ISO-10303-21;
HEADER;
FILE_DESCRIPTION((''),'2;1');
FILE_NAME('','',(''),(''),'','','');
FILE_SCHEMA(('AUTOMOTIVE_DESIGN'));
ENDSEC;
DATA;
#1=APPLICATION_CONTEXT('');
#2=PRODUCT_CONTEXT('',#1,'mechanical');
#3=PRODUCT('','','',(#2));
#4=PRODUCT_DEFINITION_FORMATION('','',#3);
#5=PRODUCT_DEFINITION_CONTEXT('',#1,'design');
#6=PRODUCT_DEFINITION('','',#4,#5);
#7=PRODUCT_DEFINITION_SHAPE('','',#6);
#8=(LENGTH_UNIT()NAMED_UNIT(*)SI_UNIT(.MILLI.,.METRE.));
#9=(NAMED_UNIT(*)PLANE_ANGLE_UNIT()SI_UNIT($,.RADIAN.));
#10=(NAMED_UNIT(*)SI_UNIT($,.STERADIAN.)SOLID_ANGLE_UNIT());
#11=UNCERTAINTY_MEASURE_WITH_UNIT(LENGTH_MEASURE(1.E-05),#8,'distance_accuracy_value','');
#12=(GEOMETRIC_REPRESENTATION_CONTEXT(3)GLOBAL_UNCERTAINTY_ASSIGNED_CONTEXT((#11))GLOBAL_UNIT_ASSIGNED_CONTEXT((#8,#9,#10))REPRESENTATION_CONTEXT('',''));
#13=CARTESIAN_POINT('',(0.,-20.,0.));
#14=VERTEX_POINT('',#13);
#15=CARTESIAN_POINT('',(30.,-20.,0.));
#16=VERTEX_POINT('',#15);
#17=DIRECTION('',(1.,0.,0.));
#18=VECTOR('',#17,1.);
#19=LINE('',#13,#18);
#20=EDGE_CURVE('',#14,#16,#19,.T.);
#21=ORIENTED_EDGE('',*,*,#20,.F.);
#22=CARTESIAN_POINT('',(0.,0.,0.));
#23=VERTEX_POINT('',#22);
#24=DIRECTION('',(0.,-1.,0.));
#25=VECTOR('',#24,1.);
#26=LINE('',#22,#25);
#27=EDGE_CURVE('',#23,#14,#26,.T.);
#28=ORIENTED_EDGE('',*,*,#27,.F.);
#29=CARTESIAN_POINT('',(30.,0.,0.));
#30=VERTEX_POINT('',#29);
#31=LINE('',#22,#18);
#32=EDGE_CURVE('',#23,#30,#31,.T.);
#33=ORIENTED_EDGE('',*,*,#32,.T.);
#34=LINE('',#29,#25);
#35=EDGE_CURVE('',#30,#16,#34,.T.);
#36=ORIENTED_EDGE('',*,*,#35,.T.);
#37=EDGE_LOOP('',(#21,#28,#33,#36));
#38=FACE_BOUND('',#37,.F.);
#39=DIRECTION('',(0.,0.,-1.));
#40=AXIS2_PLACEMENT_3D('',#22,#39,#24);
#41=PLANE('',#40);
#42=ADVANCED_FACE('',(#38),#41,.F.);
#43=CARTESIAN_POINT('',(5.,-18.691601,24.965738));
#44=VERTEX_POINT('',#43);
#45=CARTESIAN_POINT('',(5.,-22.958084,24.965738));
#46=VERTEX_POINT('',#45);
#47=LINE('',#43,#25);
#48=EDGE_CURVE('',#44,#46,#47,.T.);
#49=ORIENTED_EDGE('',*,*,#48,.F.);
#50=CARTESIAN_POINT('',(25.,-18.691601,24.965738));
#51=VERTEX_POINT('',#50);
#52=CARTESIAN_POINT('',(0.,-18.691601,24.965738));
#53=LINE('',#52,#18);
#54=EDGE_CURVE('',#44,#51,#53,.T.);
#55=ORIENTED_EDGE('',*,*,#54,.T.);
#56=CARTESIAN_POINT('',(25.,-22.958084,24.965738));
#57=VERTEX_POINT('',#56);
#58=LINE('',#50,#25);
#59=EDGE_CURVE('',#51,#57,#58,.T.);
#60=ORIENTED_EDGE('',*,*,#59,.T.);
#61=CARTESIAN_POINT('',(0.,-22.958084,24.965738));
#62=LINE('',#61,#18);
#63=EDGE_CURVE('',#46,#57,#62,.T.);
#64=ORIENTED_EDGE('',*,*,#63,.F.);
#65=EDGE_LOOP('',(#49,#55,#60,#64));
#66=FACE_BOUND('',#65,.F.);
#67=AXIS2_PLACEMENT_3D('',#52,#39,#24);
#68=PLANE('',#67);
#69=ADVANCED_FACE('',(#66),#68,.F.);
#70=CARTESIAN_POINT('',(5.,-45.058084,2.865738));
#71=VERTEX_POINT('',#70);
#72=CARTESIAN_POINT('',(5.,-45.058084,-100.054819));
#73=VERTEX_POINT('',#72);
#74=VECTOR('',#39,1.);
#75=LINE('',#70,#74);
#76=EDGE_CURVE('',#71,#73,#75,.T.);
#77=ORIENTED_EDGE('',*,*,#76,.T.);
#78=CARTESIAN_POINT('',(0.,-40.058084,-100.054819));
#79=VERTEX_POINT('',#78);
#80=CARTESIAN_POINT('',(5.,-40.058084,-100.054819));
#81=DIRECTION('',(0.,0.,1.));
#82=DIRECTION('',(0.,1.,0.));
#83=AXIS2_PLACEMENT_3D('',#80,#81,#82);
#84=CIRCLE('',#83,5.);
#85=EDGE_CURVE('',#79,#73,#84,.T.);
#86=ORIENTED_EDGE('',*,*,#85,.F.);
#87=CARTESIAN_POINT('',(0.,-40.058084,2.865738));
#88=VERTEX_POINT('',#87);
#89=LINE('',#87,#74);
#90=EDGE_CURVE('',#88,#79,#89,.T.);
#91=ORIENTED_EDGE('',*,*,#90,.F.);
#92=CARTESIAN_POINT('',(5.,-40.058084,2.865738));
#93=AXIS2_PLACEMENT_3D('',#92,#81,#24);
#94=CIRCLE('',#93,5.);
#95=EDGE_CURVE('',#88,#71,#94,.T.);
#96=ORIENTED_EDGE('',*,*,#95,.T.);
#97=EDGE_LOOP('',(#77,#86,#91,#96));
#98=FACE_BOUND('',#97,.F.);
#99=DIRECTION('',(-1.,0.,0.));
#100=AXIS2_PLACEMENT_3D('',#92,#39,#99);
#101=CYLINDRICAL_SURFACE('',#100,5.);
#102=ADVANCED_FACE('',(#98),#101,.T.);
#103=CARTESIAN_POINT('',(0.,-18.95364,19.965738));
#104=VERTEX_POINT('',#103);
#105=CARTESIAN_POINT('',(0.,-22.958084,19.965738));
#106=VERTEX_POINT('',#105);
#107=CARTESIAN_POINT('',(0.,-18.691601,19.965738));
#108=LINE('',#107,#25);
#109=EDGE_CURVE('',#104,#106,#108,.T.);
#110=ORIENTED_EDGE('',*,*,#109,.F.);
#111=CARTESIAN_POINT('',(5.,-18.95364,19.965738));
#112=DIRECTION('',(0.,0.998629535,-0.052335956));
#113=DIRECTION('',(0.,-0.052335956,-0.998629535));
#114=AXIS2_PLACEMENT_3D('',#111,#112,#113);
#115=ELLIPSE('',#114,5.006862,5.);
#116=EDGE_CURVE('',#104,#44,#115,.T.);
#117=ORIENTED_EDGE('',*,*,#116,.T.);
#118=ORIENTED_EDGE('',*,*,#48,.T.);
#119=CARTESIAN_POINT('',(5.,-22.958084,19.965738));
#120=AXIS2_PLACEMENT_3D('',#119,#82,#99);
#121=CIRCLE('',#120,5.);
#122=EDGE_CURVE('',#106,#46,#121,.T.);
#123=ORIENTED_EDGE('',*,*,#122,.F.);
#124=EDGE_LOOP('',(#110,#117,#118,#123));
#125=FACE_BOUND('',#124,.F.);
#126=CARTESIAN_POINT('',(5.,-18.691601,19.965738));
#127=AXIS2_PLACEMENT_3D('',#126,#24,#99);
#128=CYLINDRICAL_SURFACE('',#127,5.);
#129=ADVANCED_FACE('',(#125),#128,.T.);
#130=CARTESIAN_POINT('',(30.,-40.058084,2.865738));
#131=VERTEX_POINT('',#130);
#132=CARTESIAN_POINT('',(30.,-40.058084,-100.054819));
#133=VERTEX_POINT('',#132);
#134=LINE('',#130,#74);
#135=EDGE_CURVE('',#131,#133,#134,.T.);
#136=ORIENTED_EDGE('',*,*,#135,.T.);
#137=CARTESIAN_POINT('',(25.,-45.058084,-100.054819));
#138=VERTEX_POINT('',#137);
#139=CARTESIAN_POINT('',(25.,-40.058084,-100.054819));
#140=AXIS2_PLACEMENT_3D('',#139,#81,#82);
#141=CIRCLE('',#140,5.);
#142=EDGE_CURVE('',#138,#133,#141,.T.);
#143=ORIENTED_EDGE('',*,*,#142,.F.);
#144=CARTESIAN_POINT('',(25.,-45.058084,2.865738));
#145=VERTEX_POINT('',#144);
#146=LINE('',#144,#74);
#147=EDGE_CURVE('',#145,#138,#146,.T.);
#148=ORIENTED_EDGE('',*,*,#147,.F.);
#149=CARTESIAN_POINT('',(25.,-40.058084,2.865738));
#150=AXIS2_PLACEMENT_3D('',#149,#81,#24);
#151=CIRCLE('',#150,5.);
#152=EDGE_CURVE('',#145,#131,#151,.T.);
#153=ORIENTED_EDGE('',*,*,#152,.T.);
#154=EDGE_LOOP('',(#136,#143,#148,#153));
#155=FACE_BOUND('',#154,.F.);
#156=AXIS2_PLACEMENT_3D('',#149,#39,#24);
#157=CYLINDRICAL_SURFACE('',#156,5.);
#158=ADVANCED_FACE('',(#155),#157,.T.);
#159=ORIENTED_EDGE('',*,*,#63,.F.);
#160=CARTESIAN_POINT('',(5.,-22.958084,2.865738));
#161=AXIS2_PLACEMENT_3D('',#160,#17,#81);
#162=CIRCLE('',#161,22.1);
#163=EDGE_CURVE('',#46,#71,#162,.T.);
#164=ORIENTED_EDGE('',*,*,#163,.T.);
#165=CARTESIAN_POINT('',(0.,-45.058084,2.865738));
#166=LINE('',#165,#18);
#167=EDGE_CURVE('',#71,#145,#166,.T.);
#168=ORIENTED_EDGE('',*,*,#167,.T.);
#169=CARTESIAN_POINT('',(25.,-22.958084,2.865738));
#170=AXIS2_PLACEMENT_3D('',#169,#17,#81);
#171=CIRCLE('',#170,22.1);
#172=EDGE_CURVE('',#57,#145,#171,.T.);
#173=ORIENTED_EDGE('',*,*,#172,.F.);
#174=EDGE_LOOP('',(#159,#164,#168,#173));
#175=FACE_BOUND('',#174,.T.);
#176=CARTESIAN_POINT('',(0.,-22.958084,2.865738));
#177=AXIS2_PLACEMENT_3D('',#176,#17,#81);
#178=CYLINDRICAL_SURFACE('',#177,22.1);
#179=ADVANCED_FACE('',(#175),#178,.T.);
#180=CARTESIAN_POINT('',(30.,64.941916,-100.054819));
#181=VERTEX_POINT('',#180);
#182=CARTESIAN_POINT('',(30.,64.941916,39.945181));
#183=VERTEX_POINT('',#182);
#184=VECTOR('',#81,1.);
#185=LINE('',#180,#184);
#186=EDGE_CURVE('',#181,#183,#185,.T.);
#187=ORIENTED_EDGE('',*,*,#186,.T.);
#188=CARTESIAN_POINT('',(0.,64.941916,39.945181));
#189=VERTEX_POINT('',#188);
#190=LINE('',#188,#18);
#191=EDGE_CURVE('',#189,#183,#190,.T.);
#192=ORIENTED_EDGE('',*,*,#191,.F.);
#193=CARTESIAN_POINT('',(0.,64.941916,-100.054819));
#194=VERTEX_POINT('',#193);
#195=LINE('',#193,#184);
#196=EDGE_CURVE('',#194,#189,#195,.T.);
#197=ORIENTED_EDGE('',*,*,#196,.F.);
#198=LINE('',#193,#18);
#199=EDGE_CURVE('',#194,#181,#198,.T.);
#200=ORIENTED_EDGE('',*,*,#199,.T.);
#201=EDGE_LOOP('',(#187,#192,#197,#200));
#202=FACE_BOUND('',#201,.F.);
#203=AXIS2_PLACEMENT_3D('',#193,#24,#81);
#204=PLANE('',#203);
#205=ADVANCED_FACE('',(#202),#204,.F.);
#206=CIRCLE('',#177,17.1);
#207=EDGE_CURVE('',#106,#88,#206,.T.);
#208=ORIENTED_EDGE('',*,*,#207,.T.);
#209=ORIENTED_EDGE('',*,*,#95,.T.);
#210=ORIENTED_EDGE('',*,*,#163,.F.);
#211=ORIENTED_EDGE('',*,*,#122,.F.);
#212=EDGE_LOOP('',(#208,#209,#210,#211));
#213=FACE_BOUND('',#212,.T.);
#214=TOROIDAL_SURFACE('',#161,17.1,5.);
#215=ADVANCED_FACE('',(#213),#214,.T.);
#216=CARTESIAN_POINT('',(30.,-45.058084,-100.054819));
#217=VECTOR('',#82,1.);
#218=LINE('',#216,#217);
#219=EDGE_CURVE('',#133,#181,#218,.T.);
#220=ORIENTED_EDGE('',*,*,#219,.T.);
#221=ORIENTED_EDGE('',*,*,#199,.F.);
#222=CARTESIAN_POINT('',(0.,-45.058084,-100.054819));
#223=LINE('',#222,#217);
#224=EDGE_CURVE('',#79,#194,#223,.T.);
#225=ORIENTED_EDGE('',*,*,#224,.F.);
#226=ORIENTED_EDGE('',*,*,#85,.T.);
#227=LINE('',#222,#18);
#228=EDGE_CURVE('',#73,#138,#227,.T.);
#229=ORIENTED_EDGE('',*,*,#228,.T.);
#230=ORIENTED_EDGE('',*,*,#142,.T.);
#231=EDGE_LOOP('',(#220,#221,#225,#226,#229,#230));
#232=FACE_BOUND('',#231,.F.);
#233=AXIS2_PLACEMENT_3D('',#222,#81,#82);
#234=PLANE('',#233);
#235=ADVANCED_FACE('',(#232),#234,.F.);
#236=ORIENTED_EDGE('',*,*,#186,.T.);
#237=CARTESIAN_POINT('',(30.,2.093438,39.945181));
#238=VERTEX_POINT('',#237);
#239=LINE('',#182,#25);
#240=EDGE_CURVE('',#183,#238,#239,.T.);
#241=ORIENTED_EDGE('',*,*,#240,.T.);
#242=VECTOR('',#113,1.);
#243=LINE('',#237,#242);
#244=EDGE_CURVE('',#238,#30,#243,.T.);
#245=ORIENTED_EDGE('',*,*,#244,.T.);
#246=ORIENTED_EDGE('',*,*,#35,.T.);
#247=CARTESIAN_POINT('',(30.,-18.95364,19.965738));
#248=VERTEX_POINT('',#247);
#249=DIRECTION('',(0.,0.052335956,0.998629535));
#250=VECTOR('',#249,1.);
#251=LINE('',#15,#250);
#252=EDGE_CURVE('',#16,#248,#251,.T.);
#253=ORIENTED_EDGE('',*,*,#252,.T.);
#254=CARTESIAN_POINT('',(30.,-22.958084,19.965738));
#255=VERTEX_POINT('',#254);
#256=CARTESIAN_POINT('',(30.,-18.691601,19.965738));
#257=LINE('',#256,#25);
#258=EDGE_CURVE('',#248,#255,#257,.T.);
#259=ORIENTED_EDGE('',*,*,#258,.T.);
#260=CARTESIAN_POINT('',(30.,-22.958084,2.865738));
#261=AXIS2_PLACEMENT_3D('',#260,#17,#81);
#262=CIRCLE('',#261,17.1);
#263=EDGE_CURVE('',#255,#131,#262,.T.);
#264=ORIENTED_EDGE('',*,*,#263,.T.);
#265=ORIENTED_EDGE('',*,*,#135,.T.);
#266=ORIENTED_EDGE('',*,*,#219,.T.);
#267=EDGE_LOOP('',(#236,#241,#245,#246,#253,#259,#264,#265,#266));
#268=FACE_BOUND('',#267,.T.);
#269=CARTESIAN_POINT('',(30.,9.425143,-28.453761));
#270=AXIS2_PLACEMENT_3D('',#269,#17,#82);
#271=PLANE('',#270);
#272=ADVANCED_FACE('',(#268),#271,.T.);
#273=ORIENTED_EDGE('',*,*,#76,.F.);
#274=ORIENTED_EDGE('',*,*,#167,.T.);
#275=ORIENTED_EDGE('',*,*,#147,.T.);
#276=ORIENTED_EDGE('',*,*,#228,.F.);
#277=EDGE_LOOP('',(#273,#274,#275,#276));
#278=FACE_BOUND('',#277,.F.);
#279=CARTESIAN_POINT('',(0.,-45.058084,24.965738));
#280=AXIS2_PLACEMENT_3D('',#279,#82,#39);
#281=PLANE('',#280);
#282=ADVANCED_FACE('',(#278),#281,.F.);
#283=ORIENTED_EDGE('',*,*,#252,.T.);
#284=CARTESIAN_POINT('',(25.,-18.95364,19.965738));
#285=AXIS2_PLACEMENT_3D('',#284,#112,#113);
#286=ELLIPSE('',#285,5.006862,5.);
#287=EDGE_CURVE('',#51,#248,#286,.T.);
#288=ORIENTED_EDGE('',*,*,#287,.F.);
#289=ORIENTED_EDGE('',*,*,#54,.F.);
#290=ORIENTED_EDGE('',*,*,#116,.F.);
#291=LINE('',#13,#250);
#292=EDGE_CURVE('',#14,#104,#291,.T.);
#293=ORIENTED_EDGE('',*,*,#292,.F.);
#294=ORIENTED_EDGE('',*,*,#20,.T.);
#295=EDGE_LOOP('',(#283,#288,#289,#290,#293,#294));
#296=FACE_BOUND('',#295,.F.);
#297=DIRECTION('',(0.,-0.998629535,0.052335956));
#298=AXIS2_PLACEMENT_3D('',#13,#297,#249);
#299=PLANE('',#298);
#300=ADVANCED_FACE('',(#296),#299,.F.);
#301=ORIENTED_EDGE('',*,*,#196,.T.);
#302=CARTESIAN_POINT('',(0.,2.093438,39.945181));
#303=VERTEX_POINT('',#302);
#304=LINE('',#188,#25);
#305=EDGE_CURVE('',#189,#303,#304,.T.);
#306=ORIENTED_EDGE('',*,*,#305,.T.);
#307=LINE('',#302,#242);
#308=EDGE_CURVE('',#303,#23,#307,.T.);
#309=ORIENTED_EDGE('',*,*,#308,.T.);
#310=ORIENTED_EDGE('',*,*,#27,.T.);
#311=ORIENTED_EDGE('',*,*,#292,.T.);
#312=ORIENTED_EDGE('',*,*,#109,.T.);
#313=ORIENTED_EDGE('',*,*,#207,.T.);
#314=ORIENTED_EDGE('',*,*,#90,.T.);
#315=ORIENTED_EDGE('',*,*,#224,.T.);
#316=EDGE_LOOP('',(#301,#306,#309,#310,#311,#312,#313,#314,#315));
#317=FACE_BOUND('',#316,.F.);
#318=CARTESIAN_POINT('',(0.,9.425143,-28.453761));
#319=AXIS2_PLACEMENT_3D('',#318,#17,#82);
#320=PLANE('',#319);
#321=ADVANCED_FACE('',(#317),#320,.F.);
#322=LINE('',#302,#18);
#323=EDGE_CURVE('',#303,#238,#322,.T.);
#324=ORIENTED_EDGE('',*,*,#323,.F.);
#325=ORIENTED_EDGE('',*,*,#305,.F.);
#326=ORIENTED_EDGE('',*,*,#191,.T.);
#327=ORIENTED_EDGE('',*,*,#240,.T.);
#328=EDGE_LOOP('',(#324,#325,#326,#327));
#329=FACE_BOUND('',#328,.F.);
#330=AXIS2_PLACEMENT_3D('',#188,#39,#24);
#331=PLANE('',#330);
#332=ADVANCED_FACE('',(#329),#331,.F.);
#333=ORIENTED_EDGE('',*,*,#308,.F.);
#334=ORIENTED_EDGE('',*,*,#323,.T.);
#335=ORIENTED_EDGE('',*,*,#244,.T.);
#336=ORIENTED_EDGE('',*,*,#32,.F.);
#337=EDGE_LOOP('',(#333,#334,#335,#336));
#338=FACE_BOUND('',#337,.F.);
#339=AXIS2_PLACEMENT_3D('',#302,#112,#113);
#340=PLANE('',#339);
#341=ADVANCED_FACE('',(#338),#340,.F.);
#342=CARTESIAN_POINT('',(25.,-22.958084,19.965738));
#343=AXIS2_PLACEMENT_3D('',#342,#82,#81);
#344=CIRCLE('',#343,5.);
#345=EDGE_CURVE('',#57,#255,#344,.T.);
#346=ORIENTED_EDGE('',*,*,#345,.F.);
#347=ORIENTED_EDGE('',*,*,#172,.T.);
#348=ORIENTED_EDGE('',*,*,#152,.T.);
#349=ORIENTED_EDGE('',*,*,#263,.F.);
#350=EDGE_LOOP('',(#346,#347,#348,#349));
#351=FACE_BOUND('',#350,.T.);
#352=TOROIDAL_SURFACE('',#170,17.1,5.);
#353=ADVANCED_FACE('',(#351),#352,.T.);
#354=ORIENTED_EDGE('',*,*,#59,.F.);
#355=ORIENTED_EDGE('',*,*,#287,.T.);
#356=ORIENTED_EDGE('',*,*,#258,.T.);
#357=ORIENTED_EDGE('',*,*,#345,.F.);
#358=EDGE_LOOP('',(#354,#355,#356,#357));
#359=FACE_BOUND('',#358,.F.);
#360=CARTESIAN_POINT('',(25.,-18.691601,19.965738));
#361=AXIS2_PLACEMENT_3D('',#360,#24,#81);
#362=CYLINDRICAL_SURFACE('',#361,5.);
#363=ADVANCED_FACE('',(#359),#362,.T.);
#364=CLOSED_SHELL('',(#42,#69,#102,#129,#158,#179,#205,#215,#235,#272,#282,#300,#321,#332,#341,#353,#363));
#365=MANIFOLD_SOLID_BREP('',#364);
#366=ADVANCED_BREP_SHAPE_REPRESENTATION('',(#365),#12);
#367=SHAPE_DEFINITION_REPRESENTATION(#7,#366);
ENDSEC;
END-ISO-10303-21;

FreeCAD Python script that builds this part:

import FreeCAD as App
import Part
import Sketcher

V = App.Vector
Q = App.Units.Quantity


def edges_at(feature, points):
    """Names of the edges that pass closest to the given points."""
    edges = feature.Shape.Edges
    near = lambda p: min(range(len(edges)), key=lambda i: edges[i].distToShape(Part.Vertex(*p))[0])
    return sorted({f"Edge{near(p) + 1}" for p in points})

doc = App.newDocument("Part")
body = doc.addObject("PartDesign::Body", "Body")

# Sketch on YZ plane
sketch1 = body.newObject("Sketcher::SketchObject", "Sketch")
sketch1.AttachmentSupport = (doc.getObject("YZ_Plane"), [""])
sketch1.MapMode = "FlatFace"
sketch1.addGeometry([
    Part.LineSegment(V(2, 40, 0), V(0, 0, 0)),  # 0
    Part.LineSegment(V(0, 0, 0), V(-20, 0, 0)),  # 1
    Part.LineSegment(V(-20, 0, 0), V(-19, 25, 0)),  # 2
    Part.LineSegment(V(-19, 25, 0), V(-45, 25, 0)),  # 3
    Part.LineSegment(V(-45, 25, 0), V(-45, -100, 0)),  # 4
    Part.LineSegment(V(-45, -100, 0), V(65, -100, 0)),  # 5
    Part.LineSegment(V(65, -100, 0), V(65, 40, 0)),  # 6
    Part.LineSegment(V(65, 40, 0), V(2, 40, 0)),  # 7
], False)
sketch1.addConstraint([
    Sketcher.Constraint("Coincident", 0, 2, 1, 1),
    Sketcher.Constraint("Coincident", 1, 2, 2, 1),
    Sketcher.Constraint("Coincident", 2, 2, 3, 1),
    Sketcher.Constraint("Coincident", 3, 2, 4, 1),
    Sketcher.Constraint("Coincident", 4, 2, 5, 1),
    Sketcher.Constraint("Coincident", 5, 2, 6, 1),
    Sketcher.Constraint("Coincident", 6, 2, 7, 1),
    Sketcher.Constraint("Coincident", 7, 2, 0, 1),
    Sketcher.Constraint("Horizontal", 1),
    Sketcher.Constraint("Horizontal", 3),
    Sketcher.Constraint("Vertical", 4),
    Sketcher.Constraint("Horizontal", 5),
    Sketcher.Constraint("Vertical", 6),
    Sketcher.Constraint("Horizontal", 7),
    Sketcher.Constraint("Coincident", 0, 2, -1, 1),
    Sketcher.Constraint("Parallel", 0, 2),
    Sketcher.Constraint("DistanceX", 1, 2, 1, 1, Q("20 mm")),
    Sketcher.Constraint("DistanceX", 5, 1, 5, 2, Q("110 mm")),
    Sketcher.Constraint("DistanceY", 6, 1, 6, 2, Q("140 mm")),
    Sketcher.Constraint("Angle", 0, Q("-93 deg")),
    Sketcher.Constraint("Distance", 0, Q("40 mm")),
    Sketcher.Constraint("Distance", 2, Q("25 mm")),
    Sketcher.Constraint("DistanceX", 3, 2, 3, 1, Q("26.366483 mm")),
])
pad1 = body.newObject("PartDesign::Pad", "Pad")
pad1.Profile = sketch1
pad1.Length = 30
doc.recompute()

fillet = body.newObject("PartDesign::Fillet", "Fillet")
fillet.Base = (pad1, edges_at(pad1, [(15, -45.058, 24.966)]))
fillet.Radius = 22.1
doc.recompute()

fillet2 = body.newObject("PartDesign::Fillet", "Fillet001")
fillet2.Base = (fillet, edges_at(fillet, [
    (30, -38.585, 18.493),
    (0, -38.585, 18.493),
    (30, -20.825, 24.966),
    (0, -20.825, 24.966),
]))
fillet2.Radius = 5

doc.recompute()
